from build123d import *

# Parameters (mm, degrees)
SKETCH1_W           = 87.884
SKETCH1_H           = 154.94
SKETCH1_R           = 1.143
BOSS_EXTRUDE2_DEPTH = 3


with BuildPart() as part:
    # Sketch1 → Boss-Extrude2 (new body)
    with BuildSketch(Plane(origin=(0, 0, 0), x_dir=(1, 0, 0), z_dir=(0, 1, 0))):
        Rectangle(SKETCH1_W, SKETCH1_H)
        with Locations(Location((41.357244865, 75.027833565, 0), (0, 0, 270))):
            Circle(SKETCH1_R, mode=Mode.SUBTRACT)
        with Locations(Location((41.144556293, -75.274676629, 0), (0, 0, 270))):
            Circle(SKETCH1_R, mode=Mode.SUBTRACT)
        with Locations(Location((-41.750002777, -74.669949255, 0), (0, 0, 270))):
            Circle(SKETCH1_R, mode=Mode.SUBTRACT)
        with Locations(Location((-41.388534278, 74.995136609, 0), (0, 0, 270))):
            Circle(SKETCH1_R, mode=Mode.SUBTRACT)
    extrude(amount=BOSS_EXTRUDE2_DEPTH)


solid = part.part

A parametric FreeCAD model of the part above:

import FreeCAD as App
import Part
import Sketcher
from FreeCAD import Vector
Q = App.Units.Quantity


def add_polygon(sketch, points):
    """Adds a closed chain of lines whose ends are joined by coincident constraints."""
    first, n = sketch.GeometryCount, len(points)
    for a, b in zip(points, points[1:] + points[:1]):
        sketch.addGeometry(Part.LineSegment(App.Vector(*a, 0), App.Vector(*b, 0)), False)
    for i in range(n):
        sketch.addConstraint(Sketcher.Constraint("Coincident", first + i, 2, first + (i + 1) % n, 1))

doc = App.newDocument("Part")
params = doc.addObject("Spreadsheet::Sheet", "Params")
for row, (alias, value) in enumerate([
    ("sketch1_diameter", "0.09 in"),
    ("sketch1_height", "6.1 in"),
    ("sketch1_width", "3.46 in"),
    ("pad1_length", "3 mm"),
], start=1):
    params.set(f"A{row}", alias)
    params.set(f"B{row}", "=" + value)
    params.setAlias(f"B{row}", alias)

body = doc.addObject("PartDesign::Body", "Body")

# Sketch on XZ plane
sketch1 = body.newObject("Sketcher::SketchObject", "Sketch")
sketch1.AttachmentSupport = (doc.getObject("XZ_Plane"), [""])
sketch1.MapMode = "FlatFace"
add_polygon(sketch1, [(-43.942, -77.47), (-43.942, 77.47), (43.942, 77.47), (43.942, -77.47)])  # lines 0-3
sketch1.addGeometry(Part.Circle(Vector(-41.750003, 74.669949, 0), Vector(0, 0, 1), 1.143), False)  # 4
sketch1.addGeometry(Part.Circle(Vector(41.144556, 75.274677, 0), Vector(0, 0, 1), 1.143), False)  # 5
sketch1.addGeometry(Part.Circle(Vector(-41.388534, -74.995137, 0), Vector(0, 0, 1), 1.143), False)  # 6
sketch1.addGeometry(Part.Circle(Vector(41.357245, -75.027834, 0), Vector(0, 0, 1), 1.143), False)  # 7
sketch1.addConstraint(Sketcher.Constraint("Vertical", 0))
sketch1.addConstraint(Sketcher.Constraint("Horizontal", 1))
sketch1.addConstraint(Sketcher.Constraint("Vertical", 2))
sketch1.addConstraint(Sketcher.Constraint("Horizontal", 3))
sketch1.addConstraint(Sketcher.Constraint("Equal", 4, 5))
sketch1.addConstraint(Sketcher.Constraint("Equal", 5, 6))
sketch1.addConstraint(Sketcher.Constraint("Equal", 6, 7))
sketch1.addConstraint(Sketcher.Constraint("Symmetric", 0, 2, 2, 2, -1, 1))
sketch1.addConstraint(Sketcher.Constraint("Diameter", 4, Q("0.09 in")))
sketch1.addConstraint(Sketcher.Constraint("DistanceY", 0, 1, 0, 2, Q("6.1 in")))
sketch1.addConstraint(Sketcher.Constraint("DistanceX", 1, 1, 1, 2, Q("3.46 in")))
sketch1.addConstraint(Sketcher.Constraint("DistanceY", -1, 1, 4, 3, 74.669949))
sketch1.addConstraint(Sketcher.Constraint("DistanceX", 4, 3, 5, 3, 82.894559))
sketch1.addConstraint(Sketcher.Constraint("DistanceX", 4, 3, 6, 3, 0.361468))
sketch1.addConstraint(Sketcher.Constraint("DistanceX", 6, 3, 7, 3, 82.745779))
sketch1.addConstraint(Sketcher.Constraint("DistanceY", 7, 3, 5, 3, 150.30251))
sketch1.addConstraint(Sketcher.Constraint("DistanceX", 4, 3, -1, 1, 41.750003))
sketch1.addConstraint(Sketcher.Constraint("DistanceY", -1, 1, 5, 3, 75.274677))
sketch1.addConstraint(Sketcher.Constraint("DistanceY", 6, 3, -1, 1, 74.995137))
sketch1.setExpression("Constraints[12]", "Params.sketch1_diameter")
sketch1.setExpression("Constraints[13]", "Params.sketch1_height")
sketch1.setExpression("Constraints[14]", "Params.sketch1_width")
pad1 = body.newObject("PartDesign::Pad", "Pad")
pad1.Profile = sketch1
pad1.setExpression("Length", "Params.pad1_length")
pad1.Reversed = True

doc.recompute()
